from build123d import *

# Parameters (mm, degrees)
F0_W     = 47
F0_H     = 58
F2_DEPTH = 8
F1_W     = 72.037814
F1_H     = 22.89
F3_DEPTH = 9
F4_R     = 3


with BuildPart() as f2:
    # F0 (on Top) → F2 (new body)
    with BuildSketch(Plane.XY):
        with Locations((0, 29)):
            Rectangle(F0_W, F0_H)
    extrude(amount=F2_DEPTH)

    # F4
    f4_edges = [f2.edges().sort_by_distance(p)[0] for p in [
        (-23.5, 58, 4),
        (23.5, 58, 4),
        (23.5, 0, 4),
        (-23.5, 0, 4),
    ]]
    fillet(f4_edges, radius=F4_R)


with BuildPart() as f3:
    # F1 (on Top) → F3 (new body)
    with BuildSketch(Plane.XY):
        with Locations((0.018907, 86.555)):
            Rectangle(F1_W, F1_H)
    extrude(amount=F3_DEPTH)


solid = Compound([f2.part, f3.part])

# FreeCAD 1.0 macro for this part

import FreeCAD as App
import Part
import Sketcher

V = App.Vector
Q = App.Units.Quantity


def edges_at(feature, points):
    """Names of the edges that pass closest to the given points."""
    edges = feature.Shape.Edges
    near = lambda p: min(range(len(edges)), key=lambda i: edges[i].distToShape(Part.Vertex(*p))[0])
    return sorted({f"Edge{near(p) + 1}" for p in points})

doc = App.newDocument("Part")
body = doc.addObject("PartDesign::Body", "Body")

sketch1 = body.newObject("Sketcher::SketchObject", "Sketch")
sketch1.AttachmentSupport = (doc.getObject("XY_Plane"), [""])
sketch1.MapMode = "FlatFace"
sketch1.addGeometry(Part.LineSegment(V(-24, 58, 0), V(-24, 0, 0)), False)
sketch1.addGeometry(Part.LineSegment(V(-24, 0, 0), V(24, 0, 0)), False)
sketch1.addGeometry(Part.LineSegment(V(24, 0, 0), V(24, 58, 0)), False)
sketch1.addGeometry(Part.LineSegment(V(24, 58, 0), V(-24, 58, 0)), False)
sketch1.addConstraint(Sketcher.Constraint("Coincident", 0, 2, 1, 1))
sketch1.addConstraint(Sketcher.Constraint("Coincident", 1, 2, 2, 1))
sketch1.addConstraint(Sketcher.Constraint("Coincident", 2, 2, 3, 1))
sketch1.addConstraint(Sketcher.Constraint("Coincident", 3, 2, 0, 1))
sketch1.addConstraint(Sketcher.Constraint("Vertical", 0))
sketch1.addConstraint(Sketcher.Constraint("Horizontal", 1))
sketch1.addConstraint(Sketcher.Constraint("Vertical", 2))
sketch1.addConstraint(Sketcher.Constraint("Horizontal", 3))
sketch1.addConstraint(Sketcher.Constraint("Symmetric", 0, 2, 1, 2, -1, 1))
sketch1.addConstraint(Sketcher.Constraint("DistanceX", 1, 1, 1, 2, Q("47 mm")))
sketch1.addConstraint(Sketcher.Constraint("DistanceY", 0, 2, 0, 1, Q("58 mm")))
pad1 = body.newObject("PartDesign::Pad", "Pad")
pad1.Profile = sketch1
pad1.Length = 8
doc.recompute()

fillet = body.newObject("PartDesign::Fillet", "Fillet")
fillet.Base = (pad1, edges_at(pad1, [
    (-23.5, 58, 4),
    (23.5, 58, 4),
    (23.5, 0, 4),
    (-23.5, 0, 4),
]))
fillet.Radius = 3
body2 = doc.addObject("PartDesign::Body", "Body001")

sketch2 = body2.newObject("Sketcher::SketchObject", "Sketch001")
sketch2.AttachmentSupport = (doc.getObject("XY_Plane001"), [""])
sketch2.MapMode = "FlatFace"
sketch2.addGeometry(Part.LineSegment(V(-36, 98, 0), V(-36, 75, 0)), False)
sketch2.addGeometry(Part.LineSegment(V(-36, 75, 0), V(36, 75, 0)), False)
sketch2.addGeometry(Part.LineSegment(V(36, 75, 0), V(36, 98, 0)), False)
sketch2.addGeometry(Part.LineSegment(V(36, 98, 0), V(-36, 98, 0)), False)
sketch2.addConstraint(Sketcher.Constraint("Coincident", 0, 2, 1, 1))
sketch2.addConstraint(Sketcher.Constraint("Coincident", 1, 2, 2, 1))
sketch2.addConstraint(Sketcher.Constraint("Coincident", 2, 2, 3, 1))
sketch2.addConstraint(Sketcher.Constraint("Coincident", 3, 2, 0, 1))
sketch2.addConstraint(Sketcher.Constraint("Vertical", 0))
sketch2.addConstraint(Sketcher.Constraint("Horizontal", 1))
sketch2.addConstraint(Sketcher.Constraint("Vertical", 2))
sketch2.addConstraint(Sketcher.Constraint("Horizontal", 3))
sketch2.addConstraint(Sketcher.Constraint("DistanceX", 0, 2, -1, 1, Q("36 mm")))
sketch2.addConstraint(Sketcher.Constraint("DistanceY", -1, 1, 2, 2, Q("98 mm")))
sketch2.addConstraint(Sketcher.Constraint("DistanceY", 0, 2, 0, 1, Q("22.89 mm")))
sketch2.addConstraint(Sketcher.Constraint("DistanceX", 1, 1, 1, 2, Q("72.037814 mm")))
pad2 = body2.newObject("PartDesign::Pad", "Pad001")
pad2.Profile = sketch2
pad2.Length = 9

doc.recompute()
